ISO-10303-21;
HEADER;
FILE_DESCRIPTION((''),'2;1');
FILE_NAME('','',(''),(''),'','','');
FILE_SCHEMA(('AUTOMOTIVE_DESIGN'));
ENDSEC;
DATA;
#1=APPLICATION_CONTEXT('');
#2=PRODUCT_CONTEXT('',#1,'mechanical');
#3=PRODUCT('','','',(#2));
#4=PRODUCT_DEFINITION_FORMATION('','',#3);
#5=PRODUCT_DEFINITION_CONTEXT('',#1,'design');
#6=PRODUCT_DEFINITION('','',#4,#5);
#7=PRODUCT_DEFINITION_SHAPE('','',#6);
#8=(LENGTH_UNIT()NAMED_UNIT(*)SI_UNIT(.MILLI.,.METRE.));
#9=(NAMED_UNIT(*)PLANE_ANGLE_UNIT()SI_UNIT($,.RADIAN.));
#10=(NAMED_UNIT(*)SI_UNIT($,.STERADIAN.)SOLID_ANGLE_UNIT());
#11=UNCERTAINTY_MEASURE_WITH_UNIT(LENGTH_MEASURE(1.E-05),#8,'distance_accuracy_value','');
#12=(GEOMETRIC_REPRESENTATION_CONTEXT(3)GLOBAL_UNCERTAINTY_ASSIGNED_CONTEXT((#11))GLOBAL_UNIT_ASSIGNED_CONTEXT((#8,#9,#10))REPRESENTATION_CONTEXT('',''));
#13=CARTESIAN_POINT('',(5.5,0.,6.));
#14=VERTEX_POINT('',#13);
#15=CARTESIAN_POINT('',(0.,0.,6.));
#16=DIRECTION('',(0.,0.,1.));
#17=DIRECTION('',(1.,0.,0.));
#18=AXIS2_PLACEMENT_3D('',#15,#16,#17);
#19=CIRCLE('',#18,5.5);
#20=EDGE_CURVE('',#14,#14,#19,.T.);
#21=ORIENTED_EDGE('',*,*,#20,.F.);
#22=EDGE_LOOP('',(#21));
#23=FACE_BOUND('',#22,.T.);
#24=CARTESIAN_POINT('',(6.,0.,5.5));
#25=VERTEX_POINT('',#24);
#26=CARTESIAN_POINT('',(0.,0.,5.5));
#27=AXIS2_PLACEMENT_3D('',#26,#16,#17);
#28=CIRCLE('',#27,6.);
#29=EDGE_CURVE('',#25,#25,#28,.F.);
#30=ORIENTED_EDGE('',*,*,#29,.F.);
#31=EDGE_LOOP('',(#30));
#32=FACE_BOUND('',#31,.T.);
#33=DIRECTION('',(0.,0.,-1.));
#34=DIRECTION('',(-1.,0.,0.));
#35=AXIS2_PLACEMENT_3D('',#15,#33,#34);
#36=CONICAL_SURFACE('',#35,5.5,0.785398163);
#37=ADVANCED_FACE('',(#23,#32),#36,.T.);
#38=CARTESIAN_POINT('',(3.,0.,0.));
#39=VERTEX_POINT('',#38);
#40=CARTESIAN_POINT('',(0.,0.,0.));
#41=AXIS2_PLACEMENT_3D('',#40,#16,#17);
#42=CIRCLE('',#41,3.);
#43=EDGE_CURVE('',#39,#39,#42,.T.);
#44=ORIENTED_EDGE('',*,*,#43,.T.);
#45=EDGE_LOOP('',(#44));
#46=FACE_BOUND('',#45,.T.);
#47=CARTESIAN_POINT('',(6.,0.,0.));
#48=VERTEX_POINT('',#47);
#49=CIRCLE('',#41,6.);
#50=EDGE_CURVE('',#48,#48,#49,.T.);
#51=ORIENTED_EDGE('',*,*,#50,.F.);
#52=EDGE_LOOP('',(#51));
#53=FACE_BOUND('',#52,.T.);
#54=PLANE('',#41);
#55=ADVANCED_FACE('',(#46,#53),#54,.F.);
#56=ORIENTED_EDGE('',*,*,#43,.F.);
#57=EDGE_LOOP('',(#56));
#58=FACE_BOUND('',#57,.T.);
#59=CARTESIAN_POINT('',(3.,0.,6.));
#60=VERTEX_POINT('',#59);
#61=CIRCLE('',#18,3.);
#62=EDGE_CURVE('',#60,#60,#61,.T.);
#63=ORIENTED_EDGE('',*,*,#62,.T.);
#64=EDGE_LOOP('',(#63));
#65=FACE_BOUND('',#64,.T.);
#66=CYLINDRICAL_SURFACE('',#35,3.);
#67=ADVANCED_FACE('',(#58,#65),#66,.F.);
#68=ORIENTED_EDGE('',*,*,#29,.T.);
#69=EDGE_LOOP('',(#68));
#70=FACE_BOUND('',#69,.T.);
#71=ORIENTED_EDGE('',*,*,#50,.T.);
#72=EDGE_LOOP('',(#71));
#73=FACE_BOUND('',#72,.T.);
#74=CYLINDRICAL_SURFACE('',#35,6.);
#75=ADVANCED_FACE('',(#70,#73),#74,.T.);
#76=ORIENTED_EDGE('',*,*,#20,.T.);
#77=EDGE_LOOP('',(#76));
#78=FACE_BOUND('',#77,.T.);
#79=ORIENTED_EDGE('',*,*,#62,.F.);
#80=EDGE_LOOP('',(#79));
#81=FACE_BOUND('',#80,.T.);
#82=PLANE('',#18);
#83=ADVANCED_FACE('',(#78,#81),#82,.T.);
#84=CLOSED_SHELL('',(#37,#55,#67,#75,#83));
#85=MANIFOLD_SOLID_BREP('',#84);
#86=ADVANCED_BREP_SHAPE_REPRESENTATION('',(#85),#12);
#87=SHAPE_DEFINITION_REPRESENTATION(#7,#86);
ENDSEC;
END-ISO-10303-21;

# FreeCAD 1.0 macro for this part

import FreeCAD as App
import Part
import Sketcher

V = App.Vector


def edges_at(feature, points):
    """Names of the edges that pass closest to the given points."""
    edges = feature.Shape.Edges
    near = lambda p: min(range(len(edges)), key=lambda i: edges[i].distToShape(Part.Vertex(*p))[0])
    return sorted({f"Edge{near(p) + 1}" for p in points})

doc = App.newDocument("Part")
body = doc.addObject("PartDesign::Body", "Body")

# Sketch on XY plane
sketch1 = body.newObject("Sketcher::SketchObject", "Sketch")
sketch1.AttachmentSupport = (doc.getObject("XY_Plane"), [""])
sketch1.MapMode = "FlatFace"
sketch1.addGeometry(Part.Circle(V(0, 0, 0), V(0, 0, 1), 6), False)
sketch1.addGeometry(Part.Circle(V(0, 0, 0), V(0, 0, 1), 3), False)
sketch1.addConstraint(Sketcher.Constraint("Coincident", 0, 3, -1, 1))
sketch1.addConstraint(Sketcher.Constraint("Coincident", 1, 3, -1, 1))
sketch1.addConstraint(Sketcher.Constraint("Diameter", 0, 12.0))
sketch1.addConstraint(Sketcher.Constraint("Diameter", 1, 6.0))
pad1 = body.newObject("PartDesign::Pad", "Pad")
pad1.Profile = sketch1
pad1.Length = 6
doc.recompute()

chamfer = body.newObject("PartDesign::Chamfer", "Chamfer")
chamfer.Base = (pad1, edges_at(pad1, [(-6, 0, 6)]))
chamfer.Size = 0.5

doc.recompute()
